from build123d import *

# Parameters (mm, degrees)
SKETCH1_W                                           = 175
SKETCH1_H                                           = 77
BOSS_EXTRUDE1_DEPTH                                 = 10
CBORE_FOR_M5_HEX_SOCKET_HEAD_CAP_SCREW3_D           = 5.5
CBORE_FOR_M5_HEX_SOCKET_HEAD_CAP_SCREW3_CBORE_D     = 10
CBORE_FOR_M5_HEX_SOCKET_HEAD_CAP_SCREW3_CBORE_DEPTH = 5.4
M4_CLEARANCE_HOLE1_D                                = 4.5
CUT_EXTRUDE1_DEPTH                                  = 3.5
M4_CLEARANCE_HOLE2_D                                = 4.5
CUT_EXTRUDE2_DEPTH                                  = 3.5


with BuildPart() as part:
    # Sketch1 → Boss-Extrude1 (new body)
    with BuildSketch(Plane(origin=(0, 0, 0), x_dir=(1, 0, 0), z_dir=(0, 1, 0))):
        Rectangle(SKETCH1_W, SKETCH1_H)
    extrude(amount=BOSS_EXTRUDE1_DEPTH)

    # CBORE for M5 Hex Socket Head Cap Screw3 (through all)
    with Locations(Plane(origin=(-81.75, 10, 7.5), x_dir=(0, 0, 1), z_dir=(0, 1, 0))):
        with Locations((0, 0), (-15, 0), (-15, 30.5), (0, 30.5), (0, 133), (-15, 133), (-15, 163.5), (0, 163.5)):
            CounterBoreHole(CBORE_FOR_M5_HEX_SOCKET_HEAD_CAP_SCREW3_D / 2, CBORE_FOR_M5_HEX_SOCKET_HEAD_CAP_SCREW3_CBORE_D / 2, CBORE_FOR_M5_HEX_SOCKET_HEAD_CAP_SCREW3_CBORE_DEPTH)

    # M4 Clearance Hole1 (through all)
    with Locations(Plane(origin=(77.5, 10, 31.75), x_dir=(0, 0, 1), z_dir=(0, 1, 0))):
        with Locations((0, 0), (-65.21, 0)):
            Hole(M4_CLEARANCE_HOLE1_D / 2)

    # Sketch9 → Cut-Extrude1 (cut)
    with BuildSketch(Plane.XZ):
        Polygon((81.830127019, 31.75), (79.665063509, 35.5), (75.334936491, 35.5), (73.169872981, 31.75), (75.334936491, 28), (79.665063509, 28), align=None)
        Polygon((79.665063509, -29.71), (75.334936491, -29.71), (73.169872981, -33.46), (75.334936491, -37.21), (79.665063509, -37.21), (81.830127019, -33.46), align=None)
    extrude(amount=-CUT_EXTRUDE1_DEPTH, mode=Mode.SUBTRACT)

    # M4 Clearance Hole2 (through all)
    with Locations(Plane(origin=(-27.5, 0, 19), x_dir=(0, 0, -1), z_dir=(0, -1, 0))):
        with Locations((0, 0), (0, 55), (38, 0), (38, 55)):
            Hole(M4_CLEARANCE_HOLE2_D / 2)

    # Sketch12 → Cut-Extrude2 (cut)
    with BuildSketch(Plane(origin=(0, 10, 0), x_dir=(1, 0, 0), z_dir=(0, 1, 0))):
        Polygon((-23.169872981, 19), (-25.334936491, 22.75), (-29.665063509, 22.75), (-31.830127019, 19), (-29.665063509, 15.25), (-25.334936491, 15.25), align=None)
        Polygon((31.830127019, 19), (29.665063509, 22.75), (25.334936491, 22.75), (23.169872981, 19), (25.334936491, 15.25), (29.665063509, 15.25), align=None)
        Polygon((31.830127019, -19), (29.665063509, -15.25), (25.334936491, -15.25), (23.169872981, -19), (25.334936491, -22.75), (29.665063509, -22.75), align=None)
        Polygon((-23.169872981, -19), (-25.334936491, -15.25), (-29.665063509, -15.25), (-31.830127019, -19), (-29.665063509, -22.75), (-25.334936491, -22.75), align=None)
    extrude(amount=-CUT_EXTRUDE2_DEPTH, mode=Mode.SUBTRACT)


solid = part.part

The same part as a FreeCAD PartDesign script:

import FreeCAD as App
import Part
import Sketcher

V = App.Vector
Q = App.Units.Quantity


def add_polygon(sketch, points):
    """Adds a closed chain of lines whose ends are joined by coincident constraints."""
    first, n = sketch.GeometryCount, len(points)
    for a, b in zip(points, points[1:] + points[:1]):
        sketch.addGeometry(Part.LineSegment(App.Vector(*a, 0), App.Vector(*b, 0)), False)
    for i in range(n):
        sketch.addConstraint(Sketcher.Constraint("Coincident", first + i, 2, first + (i + 1) % n, 1))

doc = App.newDocument("Part")
body = doc.addObject("PartDesign::Body", "Body")

# Sketch on XZ plane
sketch1 = body.newObject("Sketcher::SketchObject", "Sketch")
sketch1.AttachmentSupport = (doc.getObject("XZ_Plane"), [""])
sketch1.MapMode = "FlatFace"
add_polygon(sketch1, [(-88, -38), (-88, 38), (88, 38), (88, -38)])  # lines 0-3
sketch1.addConstraint([
    Sketcher.Constraint("Vertical", 0),
    Sketcher.Constraint("Horizontal", 1),
    Sketcher.Constraint("Vertical", 2),
    Sketcher.Constraint("Horizontal", 3),
    Sketcher.Constraint("Symmetric", 0, 2, 2, 2, -1, 1),
    Sketcher.Constraint("DistanceX", 1, 1, 1, 2, 175.0),
    Sketcher.Constraint("DistanceY", 0, 1, 0, 2, 77.0),
])
pad1 = body.newObject("PartDesign::Pad", "Pad")
pad1.Profile = sketch1
pad1.Length = 10
pad1.Reversed = True

# Sketch on XZ plane
sketch2 = body.newObject("Sketcher::SketchObject", "Sketch001")
sketch2.AttachmentSupport = (doc.getObject("XZ_Plane"), [""])
sketch2.MapMode = "FlatFace"
sketch2.AttachmentOffset = App.Placement(V(0, 0, -10), App.Rotation())
sketch2.addGeometry([
    Part.Circle(V(-81.8, 7.5, 0), V(0, 0, 1), 2.8),  # 0
    Part.Circle(V(-81.8, -7.5, 0), V(0, 0, 1), 2.8),  # 1
    Part.Circle(V(-51.2, -7.5, 0), V(0, 0, 1), 2.8),  # 2
    Part.Circle(V(-51.2, 7.5, 0), V(0, 0, 1), 2.8),  # 3
    Part.Circle(V(51.2, 7.5, 0), V(0, 0, 1), 2.8),  # 4
    Part.Circle(V(51.2, -7.5, 0), V(0, 0, 1), 2.8),  # 5
    Part.Circle(V(81.8, -7.5, 0), V(0, 0, 1), 2.8),  # 6
    Part.Circle(V(81.8, 7.5, 0), V(0, 0, 1), 2.8),  # 7
], False)
sketch2.addConstraint([
    Sketcher.Constraint("Equal", 0, 1),
    Sketcher.Constraint("Equal", 1, 2),
    Sketcher.Constraint("Equal", 2, 3),
    Sketcher.Constraint("Equal", 3, 4),
    Sketcher.Constraint("Equal", 4, 5),
    Sketcher.Constraint("Equal", 5, 6),
    Sketcher.Constraint("Equal", 6, 7),
    Sketcher.Constraint("Symmetric", 2, 3, 4, 3, -1, 1),
    Sketcher.Constraint("Symmetric", 3, 3, 5, 3, -1, 1),
    Sketcher.Constraint("Symmetric", 0, 3, 6, 3, -1, 1),
    Sketcher.Constraint("Symmetric", 1, 3, 7, 3, -1, 1),
    Sketcher.Constraint("Symmetric", 3, 3, 4, 3, -2),
    Sketcher.Constraint("Symmetric", 1, 3, 6, 3, -2),
    Sketcher.Constraint("Horizontal", 1, 3, 2, 3),
    Sketcher.Constraint("Diameter", 0, 5.5),
    Sketcher.Constraint("DistanceY", 1, 3, 0, 3, 15.0),
    Sketcher.Constraint("DistanceX", 0, 3, 4, 3, 133.0),
    Sketcher.Constraint("DistanceX", 1, 3, 2, 3, 30.5),
])
doc.recompute()
hole = body.newObject("PartDesign::Hole", "Hole")
hole.Profile = sketch2
hole.ThreadType = "None"
hole.Diameter = 5.5
hole.DepthType = "ThroughAll"
hole.HoleCutType = "Counterbore"
hole.HoleCutDiameter = 10
hole.HoleCutDepth = 5.4
hole.Reversed = True

# Sketch on XZ plane
sketch3 = body.newObject("Sketcher::SketchObject", "Sketch002")
sketch3.AttachmentSupport = (doc.getObject("XZ_Plane"), [""])
sketch3.MapMode = "FlatFace"
sketch3.AttachmentOffset = App.Placement(V(0, 0, -10), App.Rotation())
sketch3.addGeometry([
    Part.Circle(V(77.5, 31.8, 0), V(0, 0, 1), 2.2),
    Part.Circle(V(77.5, -33.5, 0), V(0, 0, 1), 2.2),
], False)
sketch3.addConstraint([
    Sketcher.Constraint("Equal", 0, 1),
    Sketcher.Constraint("Vertical", 0, 3, 1, 3),
    Sketcher.Constraint("Diameter", 0, 4.5),
    Sketcher.Constraint("DistanceX", -1, 1, 0, 3, 77.5),
    Sketcher.Constraint("DistanceY", -1, 1, 0, 3, 31.75),
    Sketcher.Constraint("DistanceY", 1, 3, -1, 1, 33.46),
])
doc.recompute()
hole2 = body.newObject("PartDesign::Hole", "Hole001")
hole2.Profile = sketch3
hole2.ThreadType = "None"
hole2.Diameter = 4.5
hole2.DepthType = "ThroughAll"
hole2.Reversed = True

# Sketch on XZ plane
sketch4 = body.newObject("Sketcher::SketchObject", "Sketch003")
sketch4.AttachmentSupport = (doc.getObject("XZ_Plane"), [""])
sketch4.MapMode = "FlatFace"
add_polygon(sketch4, [(81.8, 31.8), (79.7, 35.5), (75.3, 35.5), (73.2, 31.8), (75.3, 28), (79.7, 28)])  # lines 0-5
add_polygon(sketch4, [(79.7, -29.7), (75.3, -29.7), (73.2, -33.5), (75.3, -37.2), (79.7, -37.2), (81.8, -33.5)])  # lines 6-11
sketch4.addConstraint([
    Sketcher.Constraint("Horizontal", 1),
    Sketcher.Constraint("Horizontal", 4),
    Sketcher.Constraint("Horizontal", 6),
    Sketcher.Constraint("Horizontal", 9),
    Sketcher.Constraint("Parallel", 0, 3),
    Sketcher.Constraint("Parallel", 2, 5),
    Sketcher.Constraint("Parallel", 5, 7),
    Sketcher.Constraint("Parallel", 3, 8),
    Sketcher.Constraint("Parallel", 7, 10),
    Sketcher.Constraint("Parallel", 8, 11),
    Sketcher.Constraint("Horizontal", 2, 2, 5, 2),
    Sketcher.Constraint("Horizontal", 7, 2, 10, 2),
    Sketcher.Constraint("Vertical", 1, 2, 3, 2),
    Sketcher.Constraint("Vertical", 0, 2, 4, 2),
    Sketcher.Constraint("Vertical", 3, 2, 6, 2),
    Sketcher.Constraint("Vertical", 2, 2, 7, 2),
    Sketcher.Constraint("Vertical", 6, 2, 8, 2),
    Sketcher.Constraint("Vertical", 4, 2, 9, 2),
    Sketcher.Constraint("Angle", 0, Q("120 deg")),
    Sketcher.Constraint("DistanceY", -1, 1, 3, 2, 28.0),
    Sketcher.Constraint("DistanceY", -1, 1, 0, 2, 35.5),
    Sketcher.Constraint("DistanceY", 6, 2, -1, 1, 29.71),
    Sketcher.Constraint("DistanceX", 1, 2, 1, 1, 4.330127),
    Sketcher.Constraint("DistanceX", -1, 1, 0, 2, 79.665064),
])
pocket1 = body.newObject("PartDesign::Pocket", "Pocket")
pocket1.Profile = sketch4
pocket1.Length = 3.5

# Sketch on XZ plane
sketch5 = body.newObject("Sketcher::SketchObject", "Sketch004")
sketch5.AttachmentSupport = (doc.getObject("XZ_Plane"), [""])
sketch5.MapMode = "FlatFace"
sketch5.addGeometry([
    Part.Circle(V(-27.5, 19, 0), V(0, 0, 1), 2.2),
    Part.Circle(V(27.5, 19, 0), V(0, 0, 1), 2.2),
    Part.Circle(V(-27.5, -19, 0), V(0, 0, 1), 2.2),
    Part.Circle(V(27.5, -19, 0), V(0, 0, 1), 2.2),
], False)
sketch5.addConstraint([
    Sketcher.Constraint("Equal", 0, 1),
    Sketcher.Constraint("Equal", 1, 2),
    Sketcher.Constraint("Equal", 2, 3),
    Sketcher.Constraint("Symmetric", 1, 3, 2, 3, -1, 1),
    Sketcher.Constraint("Symmetric", 0, 3, 3, 3, -1, 1),
    Sketcher.Constraint("Symmetric", 0, 3, 1, 3, -2),
    Sketcher.Constraint("Diameter", 0, 4.5),
    Sketcher.Constraint("DistanceY", -1, 1, 0, 3, 19.0),
    Sketcher.Constraint("DistanceX", 0, 3, 1, 3, 55.0),
])
doc.recompute()
hole3 = body.newObject("PartDesign::Hole", "Hole002")
hole3.Profile = sketch5
hole3.ThreadType = "None"
hole3.Diameter = 4.5
hole3.DepthType = "ThroughAll"

# Sketch on XZ plane
sketch6 = body.newObject("Sketcher::SketchObject", "Sketch005")
sketch6.AttachmentSupport = (doc.getObject("XZ_Plane"), [""])
sketch6.MapMode = "FlatFace"
sketch6.AttachmentOffset = App.Placement(V(0, 0, -10), App.Rotation())
add_polygon(sketch6, [(-23.2, -19), (-25.3, -22.8), (-29.7, -22.8), (-31.8, -19), (-29.7, -15.2), (-25.3, -15.2)])  # lines 0-5
add_polygon(sketch6, [(31.8, -19), (29.7, -22.8), (25.3, -22.8), (23.2, -19), (25.3, -15.2), (29.7, -15.2)])  # lines 6-11
add_polygon(sketch6, [(31.8, 19), (29.7, 15.2), (25.3, 15.2), (23.2, 19), (25.3, 22.8), (29.7, 22.8)])  # lines 12-17
add_polygon(sketch6, [(-23.2, 19), (-25.3, 15.2), (-29.7, 15.2), (-31.8, 19), (-29.7, 22.8), (-25.3, 22.8)])  # lines 18-23
sketch6.addConstraint([
    Sketcher.Constraint("Horizontal", 1),
    Sketcher.Constraint("Horizontal", 4),
    Sketcher.Constraint("Horizontal", 7),
    Sketcher.Constraint("Horizontal", 10),
    Sketcher.Constraint("Horizontal", 13),
    Sketcher.Constraint("Horizontal", 16),
    Sketcher.Constraint("Horizontal", 19),
    Sketcher.Constraint("Horizontal", 22),
    Sketcher.Constraint("Symmetric", 3, 2, 12, 2, -1, 1),
    Sketcher.Constraint("Symmetric", 5, 2, 14, 2, -1, 1),
    Sketcher.Constraint("Symmetric", 0, 2, 15, 2, -1, 1),
    Sketcher.Constraint("Symmetric", 2, 2, 17, 2, -1, 1),
    Sketcher.Constraint("Symmetric", 9, 2, 18, 2, -1, 1),
    Sketcher.Constraint("Symmetric", 11, 2, 20, 2, -1, 1),
    Sketcher.Constraint("Symmetric", 6, 2, 21, 2, -1, 1),
    Sketcher.Constraint("Symmetric", 8, 2, 23, 2, -1, 1),
    Sketcher.Constraint("Symmetric", 1, 2, 6, 2, -2),
    Sketcher.Constraint("Symmetric", 5, 2, 8, 2, -2),
    Sketcher.Constraint("Symmetric", 4, 2, 9, 2, -2),
    Sketcher.Constraint("Symmetric", 2, 2, 11, 2, -2),
    Sketcher.Constraint("Parallel", 0, 3),
    Sketcher.Constraint("Parallel", 2, 5),
    Sketcher.Constraint("Parallel", 3, 6),
    Sketcher.Constraint("Parallel", 5, 8),
    Sketcher.Constraint("Parallel", 8, 11),
    Sketcher.Constraint("Parallel", 11, 14),
    Sketcher.Constraint("Parallel", 14, 17),
    Sketcher.Constraint("Parallel", 17, 20),
    Sketcher.Constraint("Parallel", 20, 23),
    Sketcher.Constraint("Horizontal", 2, 2, 5, 2),
    Sketcher.Constraint("Vertical", 1, 2, 3, 2),
    Sketcher.Constraint("Angle", 0, Q("-120 deg")),
    Sketcher.Constraint("DistanceY", 2, 2, -1, 1, 19.0),
    Sketcher.Constraint("DistanceX", 0, 2, 6, 2, 55.0),
    Sketcher.Constraint("DistanceY", 1, 2, 3, 2, 7.5),
    Sketcher.Constraint("DistanceX", 1, 2, 1, 1, 4.330127),
])
pocket2 = body.newObject("PartDesign::Pocket", "Pocket001")
pocket2.Profile = sketch6
pocket2.Length = 3.5
pocket2.Reversed = True

doc.recompute()
